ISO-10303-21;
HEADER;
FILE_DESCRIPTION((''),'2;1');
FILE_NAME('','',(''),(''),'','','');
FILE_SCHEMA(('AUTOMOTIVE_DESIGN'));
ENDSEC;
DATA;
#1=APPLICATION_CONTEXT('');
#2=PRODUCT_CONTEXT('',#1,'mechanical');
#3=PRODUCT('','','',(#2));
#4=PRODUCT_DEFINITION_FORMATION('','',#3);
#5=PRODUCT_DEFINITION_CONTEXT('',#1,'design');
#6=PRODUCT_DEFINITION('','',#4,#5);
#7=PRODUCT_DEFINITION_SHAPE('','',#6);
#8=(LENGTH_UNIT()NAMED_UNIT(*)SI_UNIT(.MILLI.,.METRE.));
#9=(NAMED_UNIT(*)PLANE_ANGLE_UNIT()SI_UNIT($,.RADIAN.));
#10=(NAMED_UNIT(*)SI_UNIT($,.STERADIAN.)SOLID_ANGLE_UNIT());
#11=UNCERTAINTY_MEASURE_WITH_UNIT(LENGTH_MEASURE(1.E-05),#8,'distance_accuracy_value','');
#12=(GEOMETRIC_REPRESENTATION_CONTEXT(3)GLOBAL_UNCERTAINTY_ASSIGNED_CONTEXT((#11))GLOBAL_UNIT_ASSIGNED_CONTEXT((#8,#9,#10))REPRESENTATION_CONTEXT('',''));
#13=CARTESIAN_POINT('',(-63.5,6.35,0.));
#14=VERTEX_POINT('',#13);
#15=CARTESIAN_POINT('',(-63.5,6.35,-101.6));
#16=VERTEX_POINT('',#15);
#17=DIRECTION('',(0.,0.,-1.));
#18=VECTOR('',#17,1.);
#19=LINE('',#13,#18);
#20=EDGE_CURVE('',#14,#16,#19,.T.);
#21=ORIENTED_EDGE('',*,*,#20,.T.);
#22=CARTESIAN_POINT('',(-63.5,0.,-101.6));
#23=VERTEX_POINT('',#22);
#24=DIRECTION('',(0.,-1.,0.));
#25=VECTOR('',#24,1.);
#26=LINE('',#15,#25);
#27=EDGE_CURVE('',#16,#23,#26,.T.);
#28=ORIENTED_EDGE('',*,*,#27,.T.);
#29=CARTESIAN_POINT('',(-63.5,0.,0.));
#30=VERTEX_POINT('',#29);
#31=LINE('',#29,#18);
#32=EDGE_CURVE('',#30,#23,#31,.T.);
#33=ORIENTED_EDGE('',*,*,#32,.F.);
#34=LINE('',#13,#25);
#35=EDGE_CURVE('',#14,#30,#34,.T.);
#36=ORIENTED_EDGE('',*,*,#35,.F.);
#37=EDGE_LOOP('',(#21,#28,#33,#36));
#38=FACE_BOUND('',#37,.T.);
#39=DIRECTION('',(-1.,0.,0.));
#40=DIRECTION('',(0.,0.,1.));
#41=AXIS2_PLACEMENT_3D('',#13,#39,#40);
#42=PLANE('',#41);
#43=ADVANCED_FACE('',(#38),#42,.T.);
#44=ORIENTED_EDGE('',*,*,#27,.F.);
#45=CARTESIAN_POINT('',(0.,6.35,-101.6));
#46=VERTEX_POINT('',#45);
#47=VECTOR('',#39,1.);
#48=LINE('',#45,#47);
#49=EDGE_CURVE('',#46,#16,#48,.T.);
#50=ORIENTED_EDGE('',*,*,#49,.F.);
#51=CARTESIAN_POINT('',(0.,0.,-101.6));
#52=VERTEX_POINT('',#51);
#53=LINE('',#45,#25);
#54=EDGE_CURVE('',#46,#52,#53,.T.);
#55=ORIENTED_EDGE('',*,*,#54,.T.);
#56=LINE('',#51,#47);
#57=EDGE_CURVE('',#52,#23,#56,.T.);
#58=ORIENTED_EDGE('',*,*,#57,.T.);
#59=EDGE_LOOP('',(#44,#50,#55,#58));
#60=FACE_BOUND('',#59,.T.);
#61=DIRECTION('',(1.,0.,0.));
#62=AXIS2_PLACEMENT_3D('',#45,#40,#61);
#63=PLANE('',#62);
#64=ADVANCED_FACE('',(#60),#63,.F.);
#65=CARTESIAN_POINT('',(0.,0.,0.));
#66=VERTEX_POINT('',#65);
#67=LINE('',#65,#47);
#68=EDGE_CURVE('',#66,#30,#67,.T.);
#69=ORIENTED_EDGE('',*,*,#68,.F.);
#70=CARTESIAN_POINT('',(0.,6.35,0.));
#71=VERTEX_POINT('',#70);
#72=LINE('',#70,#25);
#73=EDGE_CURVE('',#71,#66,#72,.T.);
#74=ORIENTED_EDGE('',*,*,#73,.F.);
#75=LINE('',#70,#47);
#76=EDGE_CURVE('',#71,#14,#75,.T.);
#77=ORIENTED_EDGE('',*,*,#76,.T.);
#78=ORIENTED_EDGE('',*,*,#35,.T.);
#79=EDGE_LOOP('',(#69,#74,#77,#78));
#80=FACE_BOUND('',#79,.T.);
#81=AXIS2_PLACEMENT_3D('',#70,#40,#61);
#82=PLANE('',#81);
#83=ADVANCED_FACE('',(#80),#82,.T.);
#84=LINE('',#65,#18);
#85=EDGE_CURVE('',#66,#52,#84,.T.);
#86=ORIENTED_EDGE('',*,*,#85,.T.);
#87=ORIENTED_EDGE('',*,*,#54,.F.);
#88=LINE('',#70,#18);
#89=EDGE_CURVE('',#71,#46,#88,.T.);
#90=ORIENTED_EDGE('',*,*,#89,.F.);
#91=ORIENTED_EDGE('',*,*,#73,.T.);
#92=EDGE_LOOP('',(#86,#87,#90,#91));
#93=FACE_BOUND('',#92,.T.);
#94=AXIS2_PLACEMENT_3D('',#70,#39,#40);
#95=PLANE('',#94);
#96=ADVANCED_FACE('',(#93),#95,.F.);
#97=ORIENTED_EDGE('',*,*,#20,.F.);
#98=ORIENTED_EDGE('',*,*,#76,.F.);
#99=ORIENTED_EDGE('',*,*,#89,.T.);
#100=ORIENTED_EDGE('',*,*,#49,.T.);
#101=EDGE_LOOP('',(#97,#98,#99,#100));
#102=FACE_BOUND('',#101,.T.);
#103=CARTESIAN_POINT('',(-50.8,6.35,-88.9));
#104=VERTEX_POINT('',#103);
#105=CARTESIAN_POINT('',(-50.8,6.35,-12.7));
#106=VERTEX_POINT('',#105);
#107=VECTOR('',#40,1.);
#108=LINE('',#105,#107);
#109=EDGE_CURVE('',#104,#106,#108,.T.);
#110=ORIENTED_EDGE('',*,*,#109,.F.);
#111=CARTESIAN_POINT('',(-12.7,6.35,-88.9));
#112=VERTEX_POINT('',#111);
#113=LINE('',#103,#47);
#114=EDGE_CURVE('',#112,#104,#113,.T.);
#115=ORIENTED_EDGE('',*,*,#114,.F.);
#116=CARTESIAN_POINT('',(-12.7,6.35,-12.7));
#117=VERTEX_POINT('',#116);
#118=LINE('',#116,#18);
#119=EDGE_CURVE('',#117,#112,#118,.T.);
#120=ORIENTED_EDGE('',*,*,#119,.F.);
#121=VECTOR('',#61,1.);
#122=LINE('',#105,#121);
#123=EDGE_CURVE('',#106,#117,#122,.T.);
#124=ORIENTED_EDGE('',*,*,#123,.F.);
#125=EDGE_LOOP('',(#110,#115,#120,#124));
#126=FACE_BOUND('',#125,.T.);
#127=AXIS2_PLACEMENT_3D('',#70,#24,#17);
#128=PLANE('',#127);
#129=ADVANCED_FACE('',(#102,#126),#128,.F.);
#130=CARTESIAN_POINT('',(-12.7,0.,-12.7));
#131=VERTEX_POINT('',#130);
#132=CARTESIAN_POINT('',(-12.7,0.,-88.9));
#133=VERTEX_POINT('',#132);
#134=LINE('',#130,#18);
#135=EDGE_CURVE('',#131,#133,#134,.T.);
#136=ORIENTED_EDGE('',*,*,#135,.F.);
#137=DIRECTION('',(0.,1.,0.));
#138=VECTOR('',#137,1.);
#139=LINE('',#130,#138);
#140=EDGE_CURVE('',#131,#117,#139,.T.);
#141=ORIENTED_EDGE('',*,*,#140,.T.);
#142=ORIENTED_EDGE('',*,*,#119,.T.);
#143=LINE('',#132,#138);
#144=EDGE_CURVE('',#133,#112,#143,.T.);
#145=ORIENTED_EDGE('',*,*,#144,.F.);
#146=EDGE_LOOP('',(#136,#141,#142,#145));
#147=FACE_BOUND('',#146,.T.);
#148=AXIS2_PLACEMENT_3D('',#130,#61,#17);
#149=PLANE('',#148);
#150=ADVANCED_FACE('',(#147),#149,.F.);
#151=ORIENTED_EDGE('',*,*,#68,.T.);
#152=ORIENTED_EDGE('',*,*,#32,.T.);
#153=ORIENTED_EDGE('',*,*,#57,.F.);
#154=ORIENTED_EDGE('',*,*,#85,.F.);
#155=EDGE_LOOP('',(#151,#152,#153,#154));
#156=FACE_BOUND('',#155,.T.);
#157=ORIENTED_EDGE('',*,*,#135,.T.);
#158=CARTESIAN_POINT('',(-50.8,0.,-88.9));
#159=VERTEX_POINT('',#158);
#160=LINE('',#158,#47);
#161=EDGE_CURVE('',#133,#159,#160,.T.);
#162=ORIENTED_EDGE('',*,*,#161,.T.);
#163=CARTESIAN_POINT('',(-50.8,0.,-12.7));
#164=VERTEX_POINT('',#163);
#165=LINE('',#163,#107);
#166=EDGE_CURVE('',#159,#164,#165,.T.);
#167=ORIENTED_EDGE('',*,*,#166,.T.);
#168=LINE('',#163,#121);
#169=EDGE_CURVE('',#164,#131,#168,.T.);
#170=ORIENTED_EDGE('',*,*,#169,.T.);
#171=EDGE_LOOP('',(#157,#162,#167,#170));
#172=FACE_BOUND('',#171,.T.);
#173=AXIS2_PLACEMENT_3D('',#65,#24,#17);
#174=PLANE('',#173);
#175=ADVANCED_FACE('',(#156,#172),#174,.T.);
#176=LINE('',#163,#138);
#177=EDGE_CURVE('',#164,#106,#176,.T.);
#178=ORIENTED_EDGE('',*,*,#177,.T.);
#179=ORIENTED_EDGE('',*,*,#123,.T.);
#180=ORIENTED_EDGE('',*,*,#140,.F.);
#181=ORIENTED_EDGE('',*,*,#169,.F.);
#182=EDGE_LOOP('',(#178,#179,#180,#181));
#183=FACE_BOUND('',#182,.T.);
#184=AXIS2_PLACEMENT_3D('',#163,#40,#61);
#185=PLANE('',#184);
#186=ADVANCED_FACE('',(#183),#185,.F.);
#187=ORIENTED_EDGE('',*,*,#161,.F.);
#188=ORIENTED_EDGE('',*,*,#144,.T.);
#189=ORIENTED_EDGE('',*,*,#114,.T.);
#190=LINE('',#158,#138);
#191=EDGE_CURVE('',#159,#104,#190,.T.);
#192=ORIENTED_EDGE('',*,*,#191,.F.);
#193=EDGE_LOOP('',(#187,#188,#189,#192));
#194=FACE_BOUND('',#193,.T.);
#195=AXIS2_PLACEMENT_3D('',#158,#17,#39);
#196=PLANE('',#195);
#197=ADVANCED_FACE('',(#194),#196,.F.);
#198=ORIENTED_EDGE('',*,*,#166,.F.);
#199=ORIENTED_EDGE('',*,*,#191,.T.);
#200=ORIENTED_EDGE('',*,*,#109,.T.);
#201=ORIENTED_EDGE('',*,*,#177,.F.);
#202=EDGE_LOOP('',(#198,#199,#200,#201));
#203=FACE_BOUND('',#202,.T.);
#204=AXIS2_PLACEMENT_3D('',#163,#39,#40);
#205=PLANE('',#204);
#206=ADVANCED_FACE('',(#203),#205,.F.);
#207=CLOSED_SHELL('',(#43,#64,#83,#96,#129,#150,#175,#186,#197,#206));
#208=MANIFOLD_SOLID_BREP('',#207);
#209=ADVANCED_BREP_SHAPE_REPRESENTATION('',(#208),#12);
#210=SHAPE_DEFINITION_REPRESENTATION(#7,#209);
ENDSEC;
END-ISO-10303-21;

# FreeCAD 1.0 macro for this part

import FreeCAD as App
import Part
import Sketcher

V = App.Vector
Q = App.Units.Quantity

doc = App.newDocument("Part")
params = doc.addObject("Spreadsheet::Sheet", "Params")
for row, (alias, value) in enumerate([
    ("sketch1_height", "4 in"),
    ("sketch1_width", "2.5 in"),
    ("pad1_length", "0.25 in"),
    ("sketch2_height", "3 in"),
    ("sketch2_width", "1.5 in"),
], start=1):
    params.set(f"A{row}", alias)
    params.set(f"B{row}", "=" + value)
    params.setAlias(f"B{row}", alias)

body = doc.addObject("PartDesign::Body", "Body")

# Sketch on XZ plane
sketch1 = body.newObject("Sketcher::SketchObject", "Sketch")
sketch1.AttachmentSupport = (doc.getObject("XZ_Plane"), [""])
sketch1.MapMode = "FlatFace"
sketch1.addGeometry([
    Part.LineSegment(V(-64, -102, 0), V(-64, 0, 0)),
    Part.LineSegment(V(-64, 0, 0), V(0, 0, 0)),
    Part.LineSegment(V(0, 0, 0), V(0, -102, 0)),
    Part.LineSegment(V(0, -102, 0), V(-64, -102, 0)),
], False)
sketch1.addConstraint([
    Sketcher.Constraint("Coincident", 0, 2, 1, 1),
    Sketcher.Constraint("Coincident", 1, 2, 2, 1),
    Sketcher.Constraint("Coincident", 2, 2, 3, 1),
    Sketcher.Constraint("Coincident", 3, 2, 0, 1),
    Sketcher.Constraint("Vertical", 0),
    Sketcher.Constraint("Horizontal", 1),
    Sketcher.Constraint("Vertical", 2),
    Sketcher.Constraint("Horizontal", 3),
    Sketcher.Constraint("Coincident", 1, 2, -1, 1),
    Sketcher.Constraint("DistanceY", 0, 1, 0, 2, Q("4 in")),
    Sketcher.Constraint("DistanceX", 1, 1, 1, 2, Q("2.5 in")),
])
sketch1.setExpression("Constraints[9]", "Params.sketch1_height")
sketch1.setExpression("Constraints[10]", "Params.sketch1_width")
pad1 = body.newObject("PartDesign::Pad", "Pad")
pad1.Profile = sketch1
pad1.setExpression("Length", "Params.pad1_length")
pad1.Reversed = True

# Sketch on XZ plane
sketch2 = body.newObject("Sketcher::SketchObject", "Sketch001")
sketch2.AttachmentSupport = (doc.getObject("XZ_Plane"), [""])
sketch2.MapMode = "FlatFace"
sketch2.AttachmentOffset = App.Placement(V(0, 0, -0.25 * 25.4), App.Rotation())
sketch2.addGeometry([
    Part.LineSegment(V(-51, -89, 0), V(-51, -13, 0)),
    Part.LineSegment(V(-51, -13, 0), V(-13, -13, 0)),
    Part.LineSegment(V(-13, -13, 0), V(-13, -89, 0)),
    Part.LineSegment(V(-13, -89, 0), V(-51, -89, 0)),
], False)
sketch2.addConstraint([
    Sketcher.Constraint("Coincident", 0, 2, 1, 1),
    Sketcher.Constraint("Coincident", 1, 2, 2, 1),
    Sketcher.Constraint("Coincident", 2, 2, 3, 1),
    Sketcher.Constraint("Coincident", 3, 2, 0, 1),
    Sketcher.Constraint("Vertical", 0),
    Sketcher.Constraint("Horizontal", 1),
    Sketcher.Constraint("Vertical", 2),
    Sketcher.Constraint("Horizontal", 3),
    Sketcher.Constraint("DistanceY", 0, 1, 0, 2, Q("3 in")),
    Sketcher.Constraint("DistanceX", 1, 1, 1, 2, Q("1.5 in")),
    Sketcher.Constraint("DistanceX", 0, 2, -1, 1, Q("2 in")),
    Sketcher.Constraint("DistanceY", 0, 2, -1, 1, Q("0.5 in")),
])
sketch2.setExpression("Constraints[8]", "Params.sketch2_height")
sketch2.setExpression("Constraints[9]", "Params.sketch2_width")
pocket1 = body.newObject("PartDesign::Pocket", "Pocket")
pocket1.Profile = sketch2
pocket1.Type = "ThroughAll"
pocket1.Reversed = True

doc.recompute()
